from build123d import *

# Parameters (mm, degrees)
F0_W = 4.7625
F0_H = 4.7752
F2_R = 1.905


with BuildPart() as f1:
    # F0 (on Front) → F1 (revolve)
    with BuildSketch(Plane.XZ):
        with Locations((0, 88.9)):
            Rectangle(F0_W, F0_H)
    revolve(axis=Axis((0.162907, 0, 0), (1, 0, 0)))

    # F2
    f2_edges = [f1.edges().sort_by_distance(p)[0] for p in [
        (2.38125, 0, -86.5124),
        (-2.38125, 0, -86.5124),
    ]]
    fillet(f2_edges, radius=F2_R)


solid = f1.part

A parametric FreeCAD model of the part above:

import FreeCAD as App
import Part
import Sketcher
Q = App.Units.Quantity


def edges_at(feature, points):
    """Names of the edges that pass closest to the given points."""
    edges = feature.Shape.Edges
    near = lambda p: min(range(len(edges)), key=lambda i: edges[i].distToShape(Part.Vertex(*p))[0])
    return sorted({f"Edge{near(p) + 1}" for p in points})

doc = App.newDocument("Part")
body = doc.addObject("PartDesign::Body", "Body")

# Sketch on XZ plane
sketch1 = body.newObject("Sketcher::SketchObject", "Sketch")
sketch1.AttachmentSupport = (doc.getObject("XZ_Plane"), [""])
sketch1.MapMode = "FlatFace"
sketch1.addGeometry([
    Part.LineSegment(App.Vector(-2.38125, 91.2876, 0), App.Vector(-2.38125, 86.5124, 0)),
    Part.LineSegment(App.Vector(-2.38125, 86.5124, 0), App.Vector(2.38125, 86.5124, 0)),
    Part.LineSegment(App.Vector(2.38125, 86.5124, 0), App.Vector(2.38125, 91.2876, 0)),
    Part.LineSegment(App.Vector(2.38125, 91.2876, 0), App.Vector(-2.38125, 91.2876, 0)),
], False)
sketch1.addConstraint([
    Sketcher.Constraint("Coincident", 0, 2, 1, 1),
    Sketcher.Constraint("Coincident", 1, 2, 2, 1),
    Sketcher.Constraint("Coincident", 2, 2, 3, 1),
    Sketcher.Constraint("Coincident", 3, 2, 0, 1),
    Sketcher.Constraint("Vertical", 0),
    Sketcher.Constraint("Horizontal", 1),
    Sketcher.Constraint("Vertical", 2),
    Sketcher.Constraint("Horizontal", 3),
    Sketcher.Constraint("DistanceX", 1, 1, 1, 2, Q("0.1875 in")),
    Sketcher.Constraint("DistanceY", 0, 2, 0, 1, Q("0.188 in")),
    Sketcher.Constraint("DistanceX", 0, 2, -1, 1, Q("0.09375 in")),
    Sketcher.Constraint("DistanceY", -1, 1, 0, 2, Q("3.406 in")),
])
revolution = body.newObject("PartDesign::Revolution", "Revolution")
revolution.Profile = sketch1
revolution.ReferenceAxis = (sketch1, ["H_Axis"])
revolution.Angle = 360
doc.recompute()

fillet = body.newObject("PartDesign::Fillet", "Fillet")
fillet.Base = (revolution, edges_at(revolution, [(2.381, 0, -86.512), (-2.381, 0, -86.512)]))
fillet.Radius = Q("0.075 in")

doc.recompute()
